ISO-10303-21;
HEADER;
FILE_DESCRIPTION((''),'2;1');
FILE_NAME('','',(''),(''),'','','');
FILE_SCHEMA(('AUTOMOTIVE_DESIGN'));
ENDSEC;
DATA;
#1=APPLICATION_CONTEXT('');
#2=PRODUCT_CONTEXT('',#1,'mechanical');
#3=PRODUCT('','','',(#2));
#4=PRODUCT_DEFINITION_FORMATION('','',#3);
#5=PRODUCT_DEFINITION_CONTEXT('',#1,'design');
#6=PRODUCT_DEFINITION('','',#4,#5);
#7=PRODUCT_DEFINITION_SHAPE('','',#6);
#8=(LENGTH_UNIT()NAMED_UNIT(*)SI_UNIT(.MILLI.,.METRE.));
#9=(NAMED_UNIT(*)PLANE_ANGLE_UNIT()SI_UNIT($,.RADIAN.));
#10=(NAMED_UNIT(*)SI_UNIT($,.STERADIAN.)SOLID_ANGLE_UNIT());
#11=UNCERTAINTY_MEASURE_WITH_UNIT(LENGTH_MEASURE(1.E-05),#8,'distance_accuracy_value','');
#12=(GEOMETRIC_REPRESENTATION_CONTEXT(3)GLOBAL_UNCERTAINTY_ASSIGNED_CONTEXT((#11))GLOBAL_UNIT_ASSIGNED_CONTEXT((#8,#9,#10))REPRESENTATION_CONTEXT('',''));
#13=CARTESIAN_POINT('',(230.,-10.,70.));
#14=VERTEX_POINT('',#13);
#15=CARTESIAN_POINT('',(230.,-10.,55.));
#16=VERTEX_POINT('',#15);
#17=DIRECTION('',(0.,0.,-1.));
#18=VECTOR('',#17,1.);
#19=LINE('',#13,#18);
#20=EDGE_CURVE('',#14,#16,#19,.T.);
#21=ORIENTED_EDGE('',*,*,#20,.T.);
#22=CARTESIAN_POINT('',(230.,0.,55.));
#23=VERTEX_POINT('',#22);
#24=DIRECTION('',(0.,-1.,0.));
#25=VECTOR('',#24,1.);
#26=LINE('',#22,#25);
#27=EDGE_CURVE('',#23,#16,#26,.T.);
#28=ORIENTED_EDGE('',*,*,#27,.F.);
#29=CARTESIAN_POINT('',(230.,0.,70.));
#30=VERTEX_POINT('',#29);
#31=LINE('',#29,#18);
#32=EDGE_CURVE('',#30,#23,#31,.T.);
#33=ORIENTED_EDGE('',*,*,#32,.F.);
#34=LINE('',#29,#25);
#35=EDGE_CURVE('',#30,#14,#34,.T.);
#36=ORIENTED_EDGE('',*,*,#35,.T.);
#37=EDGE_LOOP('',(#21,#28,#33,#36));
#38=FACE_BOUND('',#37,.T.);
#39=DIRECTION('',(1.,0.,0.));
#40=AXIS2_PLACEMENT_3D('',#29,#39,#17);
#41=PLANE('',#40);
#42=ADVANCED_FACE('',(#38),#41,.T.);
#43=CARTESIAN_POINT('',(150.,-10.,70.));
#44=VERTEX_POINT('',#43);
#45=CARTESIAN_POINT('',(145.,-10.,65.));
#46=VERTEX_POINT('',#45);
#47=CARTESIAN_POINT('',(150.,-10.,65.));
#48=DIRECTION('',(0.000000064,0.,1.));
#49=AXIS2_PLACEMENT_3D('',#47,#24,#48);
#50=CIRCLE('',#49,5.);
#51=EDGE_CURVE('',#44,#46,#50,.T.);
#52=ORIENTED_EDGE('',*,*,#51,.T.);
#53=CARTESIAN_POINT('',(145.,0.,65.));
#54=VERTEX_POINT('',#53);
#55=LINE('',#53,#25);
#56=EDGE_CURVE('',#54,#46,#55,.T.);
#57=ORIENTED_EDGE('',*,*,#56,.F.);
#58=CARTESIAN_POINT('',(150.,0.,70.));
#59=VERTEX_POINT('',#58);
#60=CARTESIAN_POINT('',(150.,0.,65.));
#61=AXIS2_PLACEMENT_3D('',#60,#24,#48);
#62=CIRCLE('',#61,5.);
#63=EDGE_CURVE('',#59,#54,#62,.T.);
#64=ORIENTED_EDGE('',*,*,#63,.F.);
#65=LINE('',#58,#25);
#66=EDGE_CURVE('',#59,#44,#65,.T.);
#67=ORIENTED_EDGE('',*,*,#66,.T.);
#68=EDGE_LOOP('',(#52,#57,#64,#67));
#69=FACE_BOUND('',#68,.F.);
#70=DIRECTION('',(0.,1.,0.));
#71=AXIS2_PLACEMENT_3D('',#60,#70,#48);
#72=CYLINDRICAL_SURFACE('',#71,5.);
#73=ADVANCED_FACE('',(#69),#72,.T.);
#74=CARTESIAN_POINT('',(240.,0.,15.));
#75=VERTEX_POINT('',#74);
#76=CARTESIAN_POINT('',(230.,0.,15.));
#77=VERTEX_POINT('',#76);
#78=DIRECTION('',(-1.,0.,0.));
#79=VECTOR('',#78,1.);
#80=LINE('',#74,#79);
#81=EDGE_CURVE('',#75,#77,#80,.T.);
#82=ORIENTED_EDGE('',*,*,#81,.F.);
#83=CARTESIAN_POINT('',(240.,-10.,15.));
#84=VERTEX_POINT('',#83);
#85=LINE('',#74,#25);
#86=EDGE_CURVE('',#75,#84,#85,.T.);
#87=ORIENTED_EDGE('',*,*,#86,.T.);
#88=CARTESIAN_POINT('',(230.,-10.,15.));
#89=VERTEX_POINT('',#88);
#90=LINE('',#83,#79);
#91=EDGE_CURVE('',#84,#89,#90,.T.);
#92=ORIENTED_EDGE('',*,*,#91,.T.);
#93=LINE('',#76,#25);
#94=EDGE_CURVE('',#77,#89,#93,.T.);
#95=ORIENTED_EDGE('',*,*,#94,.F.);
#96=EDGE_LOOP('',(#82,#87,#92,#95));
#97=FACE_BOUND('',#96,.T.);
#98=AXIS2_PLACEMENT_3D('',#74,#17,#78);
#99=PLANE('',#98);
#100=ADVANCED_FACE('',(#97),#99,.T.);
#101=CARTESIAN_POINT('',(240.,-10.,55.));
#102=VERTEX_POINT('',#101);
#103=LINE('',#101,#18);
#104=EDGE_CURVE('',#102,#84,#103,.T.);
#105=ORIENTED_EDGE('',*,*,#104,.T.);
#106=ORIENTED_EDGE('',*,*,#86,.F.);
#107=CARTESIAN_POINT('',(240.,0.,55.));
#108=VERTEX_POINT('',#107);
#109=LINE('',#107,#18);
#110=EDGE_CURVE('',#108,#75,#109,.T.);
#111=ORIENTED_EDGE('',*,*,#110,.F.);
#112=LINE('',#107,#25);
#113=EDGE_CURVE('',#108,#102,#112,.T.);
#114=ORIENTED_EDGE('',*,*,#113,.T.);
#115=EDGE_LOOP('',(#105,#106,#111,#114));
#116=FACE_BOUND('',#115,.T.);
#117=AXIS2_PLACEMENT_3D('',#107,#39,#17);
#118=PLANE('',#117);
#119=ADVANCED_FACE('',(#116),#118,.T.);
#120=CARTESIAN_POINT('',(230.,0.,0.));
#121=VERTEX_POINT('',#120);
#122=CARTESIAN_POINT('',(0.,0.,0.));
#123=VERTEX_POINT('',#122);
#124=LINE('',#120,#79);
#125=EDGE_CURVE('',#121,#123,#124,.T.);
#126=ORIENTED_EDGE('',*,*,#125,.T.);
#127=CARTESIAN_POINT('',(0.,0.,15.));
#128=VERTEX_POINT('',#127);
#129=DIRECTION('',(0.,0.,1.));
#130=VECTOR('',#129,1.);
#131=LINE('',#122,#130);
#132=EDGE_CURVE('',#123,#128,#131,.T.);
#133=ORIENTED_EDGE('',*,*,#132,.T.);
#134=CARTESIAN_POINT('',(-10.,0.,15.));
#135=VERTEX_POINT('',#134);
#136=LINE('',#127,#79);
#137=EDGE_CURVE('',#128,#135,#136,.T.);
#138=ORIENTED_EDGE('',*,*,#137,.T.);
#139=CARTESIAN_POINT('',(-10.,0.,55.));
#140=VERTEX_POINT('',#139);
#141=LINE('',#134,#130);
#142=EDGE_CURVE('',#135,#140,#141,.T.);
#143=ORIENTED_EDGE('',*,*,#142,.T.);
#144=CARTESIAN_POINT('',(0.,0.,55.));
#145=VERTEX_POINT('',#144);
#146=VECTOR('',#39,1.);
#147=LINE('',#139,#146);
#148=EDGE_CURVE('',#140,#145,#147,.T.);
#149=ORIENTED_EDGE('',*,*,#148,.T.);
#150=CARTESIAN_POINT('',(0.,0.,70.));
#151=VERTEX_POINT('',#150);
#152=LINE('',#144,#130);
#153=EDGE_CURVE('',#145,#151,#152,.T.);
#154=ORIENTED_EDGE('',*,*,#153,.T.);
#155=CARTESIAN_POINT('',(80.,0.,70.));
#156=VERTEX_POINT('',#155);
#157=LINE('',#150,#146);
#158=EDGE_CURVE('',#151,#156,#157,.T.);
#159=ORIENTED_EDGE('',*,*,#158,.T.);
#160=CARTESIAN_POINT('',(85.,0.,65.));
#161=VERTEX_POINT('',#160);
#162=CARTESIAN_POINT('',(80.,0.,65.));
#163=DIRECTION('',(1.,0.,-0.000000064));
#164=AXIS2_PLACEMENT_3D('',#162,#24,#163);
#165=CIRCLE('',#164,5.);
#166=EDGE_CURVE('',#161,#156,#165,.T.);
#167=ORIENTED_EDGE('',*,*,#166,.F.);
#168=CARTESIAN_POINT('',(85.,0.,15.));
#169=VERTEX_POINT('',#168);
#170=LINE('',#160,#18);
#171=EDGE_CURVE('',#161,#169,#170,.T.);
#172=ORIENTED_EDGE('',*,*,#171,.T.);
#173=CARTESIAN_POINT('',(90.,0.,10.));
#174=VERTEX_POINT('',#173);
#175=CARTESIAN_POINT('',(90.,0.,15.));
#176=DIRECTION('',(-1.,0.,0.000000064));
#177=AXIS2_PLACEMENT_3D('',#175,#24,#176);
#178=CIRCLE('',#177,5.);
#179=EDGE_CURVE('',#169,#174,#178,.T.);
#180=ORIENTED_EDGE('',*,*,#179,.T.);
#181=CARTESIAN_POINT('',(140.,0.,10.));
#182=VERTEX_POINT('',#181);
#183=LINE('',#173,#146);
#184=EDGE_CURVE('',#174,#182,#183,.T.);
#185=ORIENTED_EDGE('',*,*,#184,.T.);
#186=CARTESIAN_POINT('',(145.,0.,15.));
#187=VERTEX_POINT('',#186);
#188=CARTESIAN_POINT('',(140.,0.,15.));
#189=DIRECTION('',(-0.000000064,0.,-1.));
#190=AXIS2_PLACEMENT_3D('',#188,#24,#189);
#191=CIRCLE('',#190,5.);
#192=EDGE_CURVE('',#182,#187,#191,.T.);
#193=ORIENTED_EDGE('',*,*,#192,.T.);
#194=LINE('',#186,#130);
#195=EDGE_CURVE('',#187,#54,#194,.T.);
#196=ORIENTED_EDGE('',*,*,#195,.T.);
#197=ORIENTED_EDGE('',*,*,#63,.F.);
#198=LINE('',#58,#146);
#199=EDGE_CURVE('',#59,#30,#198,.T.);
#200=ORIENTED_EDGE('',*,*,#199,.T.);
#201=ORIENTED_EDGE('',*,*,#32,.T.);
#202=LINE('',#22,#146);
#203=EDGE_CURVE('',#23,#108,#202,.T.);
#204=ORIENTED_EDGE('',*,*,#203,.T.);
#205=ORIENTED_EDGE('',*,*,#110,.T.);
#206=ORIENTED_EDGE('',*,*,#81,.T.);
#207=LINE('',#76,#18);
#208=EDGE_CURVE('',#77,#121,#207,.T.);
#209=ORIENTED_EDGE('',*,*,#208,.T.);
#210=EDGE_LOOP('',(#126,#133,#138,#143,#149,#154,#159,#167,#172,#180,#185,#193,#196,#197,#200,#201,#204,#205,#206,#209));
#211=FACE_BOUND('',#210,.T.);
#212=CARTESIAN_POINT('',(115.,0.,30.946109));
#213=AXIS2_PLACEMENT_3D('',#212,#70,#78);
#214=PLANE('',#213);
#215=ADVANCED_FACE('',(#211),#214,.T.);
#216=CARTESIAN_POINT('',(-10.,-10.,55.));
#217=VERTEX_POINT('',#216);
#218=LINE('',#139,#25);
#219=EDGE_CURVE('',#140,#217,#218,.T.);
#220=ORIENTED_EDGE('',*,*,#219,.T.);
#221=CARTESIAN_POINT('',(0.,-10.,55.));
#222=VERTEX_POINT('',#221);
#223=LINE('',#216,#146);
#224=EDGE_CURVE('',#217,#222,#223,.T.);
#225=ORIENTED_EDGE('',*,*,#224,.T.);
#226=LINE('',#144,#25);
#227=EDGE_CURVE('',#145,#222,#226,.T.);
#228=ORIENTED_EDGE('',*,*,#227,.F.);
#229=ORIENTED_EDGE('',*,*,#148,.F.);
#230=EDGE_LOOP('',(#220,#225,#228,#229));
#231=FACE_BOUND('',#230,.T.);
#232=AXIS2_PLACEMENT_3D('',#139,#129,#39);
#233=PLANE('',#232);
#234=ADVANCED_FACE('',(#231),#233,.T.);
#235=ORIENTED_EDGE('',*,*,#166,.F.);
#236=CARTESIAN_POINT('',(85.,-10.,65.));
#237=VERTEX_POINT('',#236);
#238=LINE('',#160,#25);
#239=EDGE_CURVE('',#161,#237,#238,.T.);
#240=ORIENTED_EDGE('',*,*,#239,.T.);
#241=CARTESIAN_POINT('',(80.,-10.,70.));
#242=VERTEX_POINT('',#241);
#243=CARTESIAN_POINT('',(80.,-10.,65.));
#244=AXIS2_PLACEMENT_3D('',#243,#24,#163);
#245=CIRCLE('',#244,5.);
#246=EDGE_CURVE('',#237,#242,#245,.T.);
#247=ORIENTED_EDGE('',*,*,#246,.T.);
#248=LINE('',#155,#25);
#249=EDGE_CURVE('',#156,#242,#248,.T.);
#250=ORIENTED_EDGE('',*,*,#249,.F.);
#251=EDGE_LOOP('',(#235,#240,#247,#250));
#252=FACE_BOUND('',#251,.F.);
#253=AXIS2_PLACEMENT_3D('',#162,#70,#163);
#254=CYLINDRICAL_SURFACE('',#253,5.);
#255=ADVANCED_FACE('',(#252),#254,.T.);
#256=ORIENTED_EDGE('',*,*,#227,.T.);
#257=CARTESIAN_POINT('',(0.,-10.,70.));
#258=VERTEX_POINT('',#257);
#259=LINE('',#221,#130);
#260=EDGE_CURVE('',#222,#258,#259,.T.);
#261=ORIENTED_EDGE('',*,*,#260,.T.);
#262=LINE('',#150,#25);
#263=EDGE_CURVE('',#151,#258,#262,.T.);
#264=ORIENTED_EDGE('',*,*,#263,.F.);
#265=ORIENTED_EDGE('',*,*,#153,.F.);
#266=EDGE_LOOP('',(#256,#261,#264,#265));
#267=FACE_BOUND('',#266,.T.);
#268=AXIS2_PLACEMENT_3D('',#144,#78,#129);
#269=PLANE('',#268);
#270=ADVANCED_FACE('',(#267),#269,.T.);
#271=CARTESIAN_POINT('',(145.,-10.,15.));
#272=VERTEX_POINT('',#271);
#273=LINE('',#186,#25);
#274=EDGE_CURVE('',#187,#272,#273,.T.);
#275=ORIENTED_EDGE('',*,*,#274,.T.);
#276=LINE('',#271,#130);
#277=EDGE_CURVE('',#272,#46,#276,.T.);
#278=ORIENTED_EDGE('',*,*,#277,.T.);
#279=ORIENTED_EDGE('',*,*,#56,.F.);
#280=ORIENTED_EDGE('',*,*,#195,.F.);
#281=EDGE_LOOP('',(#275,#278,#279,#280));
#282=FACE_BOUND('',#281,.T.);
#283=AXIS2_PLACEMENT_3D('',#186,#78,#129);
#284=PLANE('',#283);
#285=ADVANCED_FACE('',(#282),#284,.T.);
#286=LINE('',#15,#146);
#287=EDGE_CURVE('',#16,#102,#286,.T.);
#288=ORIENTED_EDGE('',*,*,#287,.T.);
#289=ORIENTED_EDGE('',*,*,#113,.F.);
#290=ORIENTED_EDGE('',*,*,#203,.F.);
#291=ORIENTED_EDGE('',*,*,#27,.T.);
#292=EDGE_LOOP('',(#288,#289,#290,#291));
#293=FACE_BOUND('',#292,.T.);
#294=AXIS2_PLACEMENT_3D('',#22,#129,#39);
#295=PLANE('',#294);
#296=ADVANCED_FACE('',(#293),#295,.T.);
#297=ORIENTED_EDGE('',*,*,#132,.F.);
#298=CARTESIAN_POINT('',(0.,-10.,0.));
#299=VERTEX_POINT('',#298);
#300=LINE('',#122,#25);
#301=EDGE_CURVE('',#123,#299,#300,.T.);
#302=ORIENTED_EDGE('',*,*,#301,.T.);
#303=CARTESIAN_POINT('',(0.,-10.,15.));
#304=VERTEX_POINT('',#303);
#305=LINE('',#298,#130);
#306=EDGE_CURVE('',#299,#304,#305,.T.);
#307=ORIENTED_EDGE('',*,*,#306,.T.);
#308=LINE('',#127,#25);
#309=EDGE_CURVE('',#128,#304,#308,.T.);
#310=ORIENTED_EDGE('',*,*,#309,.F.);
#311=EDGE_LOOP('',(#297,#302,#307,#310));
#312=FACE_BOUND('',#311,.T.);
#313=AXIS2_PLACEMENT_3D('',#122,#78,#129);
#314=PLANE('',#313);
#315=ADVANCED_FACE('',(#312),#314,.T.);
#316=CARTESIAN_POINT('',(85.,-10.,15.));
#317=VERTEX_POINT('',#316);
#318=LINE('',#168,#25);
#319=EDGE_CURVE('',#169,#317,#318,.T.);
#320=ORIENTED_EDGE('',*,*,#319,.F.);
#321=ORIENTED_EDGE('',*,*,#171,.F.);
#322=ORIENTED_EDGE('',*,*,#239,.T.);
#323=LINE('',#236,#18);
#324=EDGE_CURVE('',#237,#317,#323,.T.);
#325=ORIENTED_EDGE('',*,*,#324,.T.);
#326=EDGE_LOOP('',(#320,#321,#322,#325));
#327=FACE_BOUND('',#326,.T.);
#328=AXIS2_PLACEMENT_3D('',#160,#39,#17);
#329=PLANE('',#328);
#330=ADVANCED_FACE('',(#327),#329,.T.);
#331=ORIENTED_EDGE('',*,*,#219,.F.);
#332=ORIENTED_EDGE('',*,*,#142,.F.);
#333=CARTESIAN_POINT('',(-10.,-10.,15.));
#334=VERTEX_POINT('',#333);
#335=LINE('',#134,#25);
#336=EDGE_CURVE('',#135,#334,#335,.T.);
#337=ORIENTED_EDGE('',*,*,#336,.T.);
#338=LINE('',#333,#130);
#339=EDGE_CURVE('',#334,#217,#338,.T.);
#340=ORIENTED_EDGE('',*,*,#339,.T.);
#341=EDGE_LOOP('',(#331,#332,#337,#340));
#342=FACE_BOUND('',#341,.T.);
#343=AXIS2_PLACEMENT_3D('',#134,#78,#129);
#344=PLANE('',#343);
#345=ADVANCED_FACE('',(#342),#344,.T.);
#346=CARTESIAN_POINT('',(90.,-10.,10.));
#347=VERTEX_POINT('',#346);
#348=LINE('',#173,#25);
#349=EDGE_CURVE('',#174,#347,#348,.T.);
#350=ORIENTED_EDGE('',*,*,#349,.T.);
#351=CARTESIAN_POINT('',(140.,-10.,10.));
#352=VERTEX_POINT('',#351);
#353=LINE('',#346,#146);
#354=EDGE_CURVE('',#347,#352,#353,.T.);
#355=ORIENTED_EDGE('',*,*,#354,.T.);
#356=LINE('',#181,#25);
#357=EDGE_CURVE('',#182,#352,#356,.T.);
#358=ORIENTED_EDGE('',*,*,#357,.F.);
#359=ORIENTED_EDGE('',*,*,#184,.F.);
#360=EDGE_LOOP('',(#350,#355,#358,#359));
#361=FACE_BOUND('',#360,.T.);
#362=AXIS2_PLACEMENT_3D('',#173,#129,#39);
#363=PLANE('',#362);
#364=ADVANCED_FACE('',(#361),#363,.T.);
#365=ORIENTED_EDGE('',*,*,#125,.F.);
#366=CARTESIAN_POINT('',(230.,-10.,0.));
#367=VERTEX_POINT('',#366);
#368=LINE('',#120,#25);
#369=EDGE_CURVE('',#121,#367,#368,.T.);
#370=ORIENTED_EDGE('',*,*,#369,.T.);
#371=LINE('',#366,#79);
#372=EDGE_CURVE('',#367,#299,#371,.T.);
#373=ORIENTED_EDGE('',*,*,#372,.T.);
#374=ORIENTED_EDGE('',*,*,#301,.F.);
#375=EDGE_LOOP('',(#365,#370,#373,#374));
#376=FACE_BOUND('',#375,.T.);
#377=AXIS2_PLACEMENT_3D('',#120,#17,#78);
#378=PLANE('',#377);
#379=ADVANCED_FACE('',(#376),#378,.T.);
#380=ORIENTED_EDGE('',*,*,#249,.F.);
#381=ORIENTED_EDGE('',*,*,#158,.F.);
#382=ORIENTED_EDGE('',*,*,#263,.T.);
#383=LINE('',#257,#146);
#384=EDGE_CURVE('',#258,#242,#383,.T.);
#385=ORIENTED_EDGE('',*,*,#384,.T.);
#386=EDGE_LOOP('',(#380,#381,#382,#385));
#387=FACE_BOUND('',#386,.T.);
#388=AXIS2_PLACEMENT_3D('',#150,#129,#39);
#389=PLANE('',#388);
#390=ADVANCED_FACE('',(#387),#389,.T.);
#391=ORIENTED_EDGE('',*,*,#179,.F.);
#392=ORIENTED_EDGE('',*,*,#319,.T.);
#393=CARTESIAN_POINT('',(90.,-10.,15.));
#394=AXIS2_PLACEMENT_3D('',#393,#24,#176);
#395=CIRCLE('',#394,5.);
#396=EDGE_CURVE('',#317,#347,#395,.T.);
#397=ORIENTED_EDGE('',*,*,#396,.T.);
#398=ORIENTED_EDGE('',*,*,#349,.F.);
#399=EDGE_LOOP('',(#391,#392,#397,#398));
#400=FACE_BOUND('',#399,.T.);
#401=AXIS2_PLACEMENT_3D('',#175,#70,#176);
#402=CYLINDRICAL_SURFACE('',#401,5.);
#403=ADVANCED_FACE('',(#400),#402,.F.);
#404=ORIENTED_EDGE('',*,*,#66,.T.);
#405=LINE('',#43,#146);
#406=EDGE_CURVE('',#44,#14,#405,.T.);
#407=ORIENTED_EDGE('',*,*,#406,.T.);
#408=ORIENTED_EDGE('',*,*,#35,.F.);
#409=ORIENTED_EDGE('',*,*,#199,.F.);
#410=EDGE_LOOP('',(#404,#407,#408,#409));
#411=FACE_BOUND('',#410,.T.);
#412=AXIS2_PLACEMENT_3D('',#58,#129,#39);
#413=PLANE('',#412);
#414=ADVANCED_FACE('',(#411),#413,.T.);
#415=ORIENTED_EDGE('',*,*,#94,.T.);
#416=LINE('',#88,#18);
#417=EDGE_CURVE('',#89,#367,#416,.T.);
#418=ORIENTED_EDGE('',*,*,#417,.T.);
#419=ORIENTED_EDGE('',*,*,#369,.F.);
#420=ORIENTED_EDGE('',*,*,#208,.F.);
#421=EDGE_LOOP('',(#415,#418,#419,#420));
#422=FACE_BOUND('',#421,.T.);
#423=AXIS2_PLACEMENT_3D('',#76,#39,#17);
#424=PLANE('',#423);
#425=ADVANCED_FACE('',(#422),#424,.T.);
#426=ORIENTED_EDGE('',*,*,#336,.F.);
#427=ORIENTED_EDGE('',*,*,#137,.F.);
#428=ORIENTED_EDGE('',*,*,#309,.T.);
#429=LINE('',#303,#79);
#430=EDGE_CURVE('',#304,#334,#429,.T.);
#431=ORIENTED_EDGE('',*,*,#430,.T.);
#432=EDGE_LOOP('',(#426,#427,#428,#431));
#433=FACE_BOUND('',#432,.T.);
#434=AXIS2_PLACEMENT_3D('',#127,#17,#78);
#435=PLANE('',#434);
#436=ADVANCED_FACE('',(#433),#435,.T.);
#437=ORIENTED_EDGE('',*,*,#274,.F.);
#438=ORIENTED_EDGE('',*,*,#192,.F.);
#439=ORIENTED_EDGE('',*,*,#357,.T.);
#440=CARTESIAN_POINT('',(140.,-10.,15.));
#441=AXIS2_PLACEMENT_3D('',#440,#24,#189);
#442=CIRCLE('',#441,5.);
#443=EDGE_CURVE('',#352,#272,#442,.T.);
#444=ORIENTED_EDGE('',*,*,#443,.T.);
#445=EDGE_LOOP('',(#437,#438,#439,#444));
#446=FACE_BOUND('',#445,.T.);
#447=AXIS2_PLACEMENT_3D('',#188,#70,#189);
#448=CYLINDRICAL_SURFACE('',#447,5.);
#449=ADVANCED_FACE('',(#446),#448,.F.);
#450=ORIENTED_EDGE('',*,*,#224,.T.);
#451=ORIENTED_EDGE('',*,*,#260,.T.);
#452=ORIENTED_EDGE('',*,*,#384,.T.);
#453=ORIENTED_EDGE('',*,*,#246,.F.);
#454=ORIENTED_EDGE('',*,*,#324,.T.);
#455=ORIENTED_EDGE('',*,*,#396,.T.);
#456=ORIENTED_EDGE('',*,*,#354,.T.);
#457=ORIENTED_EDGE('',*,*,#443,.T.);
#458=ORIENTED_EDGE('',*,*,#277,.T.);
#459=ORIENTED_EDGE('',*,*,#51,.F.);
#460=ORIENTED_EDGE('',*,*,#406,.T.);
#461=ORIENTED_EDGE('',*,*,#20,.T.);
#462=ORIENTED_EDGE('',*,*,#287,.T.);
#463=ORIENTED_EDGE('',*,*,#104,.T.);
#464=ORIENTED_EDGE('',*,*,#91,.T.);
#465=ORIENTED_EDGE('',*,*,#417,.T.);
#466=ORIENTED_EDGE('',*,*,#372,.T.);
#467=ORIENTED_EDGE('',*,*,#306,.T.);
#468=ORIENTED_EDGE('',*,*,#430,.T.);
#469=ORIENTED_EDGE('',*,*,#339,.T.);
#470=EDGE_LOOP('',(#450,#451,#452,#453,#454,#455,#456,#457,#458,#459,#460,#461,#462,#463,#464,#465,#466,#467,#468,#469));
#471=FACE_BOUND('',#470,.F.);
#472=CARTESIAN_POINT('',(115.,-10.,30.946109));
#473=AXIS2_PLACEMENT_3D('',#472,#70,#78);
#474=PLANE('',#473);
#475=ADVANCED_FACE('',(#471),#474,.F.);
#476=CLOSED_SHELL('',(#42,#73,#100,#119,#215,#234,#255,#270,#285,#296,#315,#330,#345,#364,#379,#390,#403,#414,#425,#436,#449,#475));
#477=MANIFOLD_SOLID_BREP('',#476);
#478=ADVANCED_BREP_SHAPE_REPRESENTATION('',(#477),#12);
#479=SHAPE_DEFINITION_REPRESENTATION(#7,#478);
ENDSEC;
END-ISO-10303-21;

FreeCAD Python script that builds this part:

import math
import FreeCAD as App
import Part
import Sketcher

doc = App.newDocument("Part")
body = doc.addObject("PartDesign::Body", "Body")

# Sketch on XZ plane
sketch1 = doc.addObject("Sketcher::SketchObject", "Sketch")
body.addObject(sketch1)
sketch1.AttachmentSupport = (doc.XZ_Plane, [""])
sketch1.MapMode = "FlatFace"
sketch1.addGeometry([
    Part.LineSegment(App.Vector(0, 15, 0), App.Vector(0, 0, 0)),  # 0
    Part.LineSegment(App.Vector(0, 0, 0), App.Vector(230, 0, 0)),  # 1
    Part.LineSegment(App.Vector(230, 0, 0), App.Vector(230, 15, 0)),  # 2
    Part.LineSegment(App.Vector(230, 15, 0), App.Vector(240, 15, 0)),  # 3
    Part.LineSegment(App.Vector(240, 15, 0), App.Vector(240, 55, 0)),  # 4
    Part.LineSegment(App.Vector(240, 55, 0), App.Vector(230, 55, 0)),  # 5
    Part.LineSegment(App.Vector(230, 55, 0), App.Vector(230, 70, 0)),  # 6
    Part.LineSegment(App.Vector(230, 70, 0), App.Vector(150, 70, 0)),  # 7
    Part.ArcOfCircle(Part.Circle(App.Vector(150, 65, 0), App.Vector(0, 0, 1), 5), math.radians(90), math.radians(180)),  # 8
    Part.LineSegment(App.Vector(145, 65, 0), App.Vector(145, 15, 0)),  # 9
    Part.ArcOfCircle(Part.Circle(App.Vector(140, 15, 0), App.Vector(0, 0, 1), 5), math.radians(-90), math.radians(0)),  # 10
    Part.LineSegment(App.Vector(140, 10, 0), App.Vector(90, 10, 0)),  # 11
    Part.ArcOfCircle(Part.Circle(App.Vector(90, 15, 0), App.Vector(0, 0, 1), 5), math.radians(180), math.radians(270)),  # 12
    Part.LineSegment(App.Vector(85, 15, 0), App.Vector(85, 65, 0)),  # 13
    Part.ArcOfCircle(Part.Circle(App.Vector(80, 65, 0), App.Vector(0, 0, 1), 5), math.radians(0), math.radians(90)),  # 14
    Part.LineSegment(App.Vector(80, 70, 0), App.Vector(0, 70, 0)),  # 15
    Part.LineSegment(App.Vector(0, 70, 0), App.Vector(0, 55, 0)),  # 16
    Part.LineSegment(App.Vector(0, 55, 0), App.Vector(-10, 55, 0)),  # 17
    Part.LineSegment(App.Vector(-10, 55, 0), App.Vector(-10, 15, 0)),  # 18
    Part.LineSegment(App.Vector(-10, 15, 0), App.Vector(0, 15, 0)),  # 19
], False)
sketch1.addConstraint([
    Sketcher.Constraint("Coincident", 0, 2, 1, 1),
    Sketcher.Constraint("Coincident", 1, 2, 2, 1),
    Sketcher.Constraint("Coincident", 2, 2, 3, 1),
    Sketcher.Constraint("Coincident", 3, 2, 4, 1),
    Sketcher.Constraint("Coincident", 4, 2, 5, 1),
    Sketcher.Constraint("Coincident", 5, 2, 6, 1),
    Sketcher.Constraint("Coincident", 6, 2, 7, 1),
    Sketcher.Constraint("Tangent", 7, 2, 8, 1),
    Sketcher.Constraint("Tangent", 8, 2, 9, 1),
    Sketcher.Constraint("Tangent", 9, 2, 10, 2),
    Sketcher.Constraint("Tangent", 10, 1, 11, 1),
    Sketcher.Constraint("Tangent", 11, 2, 12, 2),
    Sketcher.Constraint("Tangent", 12, 1, 13, 1),
    Sketcher.Constraint("Tangent", 13, 2, 14, 1),
    Sketcher.Constraint("Tangent", 14, 2, 15, 1),
    Sketcher.Constraint("Coincident", 15, 2, 16, 1),
    Sketcher.Constraint("Coincident", 16, 2, 17, 1),
    Sketcher.Constraint("Coincident", 17, 2, 18, 1),
    Sketcher.Constraint("Coincident", 18, 2, 19, 1),
    Sketcher.Constraint("Coincident", 19, 2, 0, 1),
    Sketcher.Constraint("Vertical", 0),
    Sketcher.Constraint("Horizontal", 1),
    Sketcher.Constraint("Vertical", 2),
    Sketcher.Constraint("Horizontal", 3),
    Sketcher.Constraint("Vertical", 4),
    Sketcher.Constraint("Horizontal", 5),
    Sketcher.Constraint("Vertical", 6),
    Sketcher.Constraint("Horizontal", 7),
    Sketcher.Constraint("Vertical", 9),
    Sketcher.Constraint("Horizontal", 11),
    Sketcher.Constraint("Vertical", 13),
    Sketcher.Constraint("Horizontal", 15),
    Sketcher.Constraint("Vertical", 16),
    Sketcher.Constraint("Horizontal", 17),
    Sketcher.Constraint("Vertical", 18),
    Sketcher.Constraint("Horizontal", 19),
    Sketcher.Constraint("Coincident", 0, 2, -1, 1),
    Sketcher.Constraint("Equal", 8, 10),
    Sketcher.Constraint("Equal", 10, 12),
    Sketcher.Constraint("Equal", 12, 14),
    Sketcher.Constraint("PointOnObject", 15, 2, -2),
    Sketcher.Constraint("Horizontal", 8, 3, 14, 3),
    Sketcher.Constraint("Horizontal", 12, 3, 2, 2),
    Sketcher.Constraint("Horizontal", 5, 2, 16, 2),
    Sketcher.Constraint("Horizontal", 12, 1, 18, 2),
    Sketcher.Constraint("Vertical", 2, 2, 5, 2),
    Sketcher.Constraint("Equal", 7, 15),
    Sketcher.Constraint("Equal", 5, 17),
    Sketcher.Constraint("Equal", 2, 6),
    Sketcher.Constraint("Equal", 11, 9),
    Sketcher.Constraint("Radius", 8, 5.0),
    Sketcher.Constraint("DistanceX", 1, 1, 1, 2, 230.0),
    Sketcher.Constraint("DistanceX", 3, 1, 3, 2, 10.0),
    Sketcher.Constraint("DistanceX", 7, 2, 7, 1, 80.0),
    Sketcher.Constraint("DistanceY", 0, 2, 0, 1, 15.0),
])
pad1 = doc.addObject("PartDesign::Pad", "Pad")
body.addObject(pad1)
pad1.Profile = sketch1
pad1.Length = 10

doc.recompute()
